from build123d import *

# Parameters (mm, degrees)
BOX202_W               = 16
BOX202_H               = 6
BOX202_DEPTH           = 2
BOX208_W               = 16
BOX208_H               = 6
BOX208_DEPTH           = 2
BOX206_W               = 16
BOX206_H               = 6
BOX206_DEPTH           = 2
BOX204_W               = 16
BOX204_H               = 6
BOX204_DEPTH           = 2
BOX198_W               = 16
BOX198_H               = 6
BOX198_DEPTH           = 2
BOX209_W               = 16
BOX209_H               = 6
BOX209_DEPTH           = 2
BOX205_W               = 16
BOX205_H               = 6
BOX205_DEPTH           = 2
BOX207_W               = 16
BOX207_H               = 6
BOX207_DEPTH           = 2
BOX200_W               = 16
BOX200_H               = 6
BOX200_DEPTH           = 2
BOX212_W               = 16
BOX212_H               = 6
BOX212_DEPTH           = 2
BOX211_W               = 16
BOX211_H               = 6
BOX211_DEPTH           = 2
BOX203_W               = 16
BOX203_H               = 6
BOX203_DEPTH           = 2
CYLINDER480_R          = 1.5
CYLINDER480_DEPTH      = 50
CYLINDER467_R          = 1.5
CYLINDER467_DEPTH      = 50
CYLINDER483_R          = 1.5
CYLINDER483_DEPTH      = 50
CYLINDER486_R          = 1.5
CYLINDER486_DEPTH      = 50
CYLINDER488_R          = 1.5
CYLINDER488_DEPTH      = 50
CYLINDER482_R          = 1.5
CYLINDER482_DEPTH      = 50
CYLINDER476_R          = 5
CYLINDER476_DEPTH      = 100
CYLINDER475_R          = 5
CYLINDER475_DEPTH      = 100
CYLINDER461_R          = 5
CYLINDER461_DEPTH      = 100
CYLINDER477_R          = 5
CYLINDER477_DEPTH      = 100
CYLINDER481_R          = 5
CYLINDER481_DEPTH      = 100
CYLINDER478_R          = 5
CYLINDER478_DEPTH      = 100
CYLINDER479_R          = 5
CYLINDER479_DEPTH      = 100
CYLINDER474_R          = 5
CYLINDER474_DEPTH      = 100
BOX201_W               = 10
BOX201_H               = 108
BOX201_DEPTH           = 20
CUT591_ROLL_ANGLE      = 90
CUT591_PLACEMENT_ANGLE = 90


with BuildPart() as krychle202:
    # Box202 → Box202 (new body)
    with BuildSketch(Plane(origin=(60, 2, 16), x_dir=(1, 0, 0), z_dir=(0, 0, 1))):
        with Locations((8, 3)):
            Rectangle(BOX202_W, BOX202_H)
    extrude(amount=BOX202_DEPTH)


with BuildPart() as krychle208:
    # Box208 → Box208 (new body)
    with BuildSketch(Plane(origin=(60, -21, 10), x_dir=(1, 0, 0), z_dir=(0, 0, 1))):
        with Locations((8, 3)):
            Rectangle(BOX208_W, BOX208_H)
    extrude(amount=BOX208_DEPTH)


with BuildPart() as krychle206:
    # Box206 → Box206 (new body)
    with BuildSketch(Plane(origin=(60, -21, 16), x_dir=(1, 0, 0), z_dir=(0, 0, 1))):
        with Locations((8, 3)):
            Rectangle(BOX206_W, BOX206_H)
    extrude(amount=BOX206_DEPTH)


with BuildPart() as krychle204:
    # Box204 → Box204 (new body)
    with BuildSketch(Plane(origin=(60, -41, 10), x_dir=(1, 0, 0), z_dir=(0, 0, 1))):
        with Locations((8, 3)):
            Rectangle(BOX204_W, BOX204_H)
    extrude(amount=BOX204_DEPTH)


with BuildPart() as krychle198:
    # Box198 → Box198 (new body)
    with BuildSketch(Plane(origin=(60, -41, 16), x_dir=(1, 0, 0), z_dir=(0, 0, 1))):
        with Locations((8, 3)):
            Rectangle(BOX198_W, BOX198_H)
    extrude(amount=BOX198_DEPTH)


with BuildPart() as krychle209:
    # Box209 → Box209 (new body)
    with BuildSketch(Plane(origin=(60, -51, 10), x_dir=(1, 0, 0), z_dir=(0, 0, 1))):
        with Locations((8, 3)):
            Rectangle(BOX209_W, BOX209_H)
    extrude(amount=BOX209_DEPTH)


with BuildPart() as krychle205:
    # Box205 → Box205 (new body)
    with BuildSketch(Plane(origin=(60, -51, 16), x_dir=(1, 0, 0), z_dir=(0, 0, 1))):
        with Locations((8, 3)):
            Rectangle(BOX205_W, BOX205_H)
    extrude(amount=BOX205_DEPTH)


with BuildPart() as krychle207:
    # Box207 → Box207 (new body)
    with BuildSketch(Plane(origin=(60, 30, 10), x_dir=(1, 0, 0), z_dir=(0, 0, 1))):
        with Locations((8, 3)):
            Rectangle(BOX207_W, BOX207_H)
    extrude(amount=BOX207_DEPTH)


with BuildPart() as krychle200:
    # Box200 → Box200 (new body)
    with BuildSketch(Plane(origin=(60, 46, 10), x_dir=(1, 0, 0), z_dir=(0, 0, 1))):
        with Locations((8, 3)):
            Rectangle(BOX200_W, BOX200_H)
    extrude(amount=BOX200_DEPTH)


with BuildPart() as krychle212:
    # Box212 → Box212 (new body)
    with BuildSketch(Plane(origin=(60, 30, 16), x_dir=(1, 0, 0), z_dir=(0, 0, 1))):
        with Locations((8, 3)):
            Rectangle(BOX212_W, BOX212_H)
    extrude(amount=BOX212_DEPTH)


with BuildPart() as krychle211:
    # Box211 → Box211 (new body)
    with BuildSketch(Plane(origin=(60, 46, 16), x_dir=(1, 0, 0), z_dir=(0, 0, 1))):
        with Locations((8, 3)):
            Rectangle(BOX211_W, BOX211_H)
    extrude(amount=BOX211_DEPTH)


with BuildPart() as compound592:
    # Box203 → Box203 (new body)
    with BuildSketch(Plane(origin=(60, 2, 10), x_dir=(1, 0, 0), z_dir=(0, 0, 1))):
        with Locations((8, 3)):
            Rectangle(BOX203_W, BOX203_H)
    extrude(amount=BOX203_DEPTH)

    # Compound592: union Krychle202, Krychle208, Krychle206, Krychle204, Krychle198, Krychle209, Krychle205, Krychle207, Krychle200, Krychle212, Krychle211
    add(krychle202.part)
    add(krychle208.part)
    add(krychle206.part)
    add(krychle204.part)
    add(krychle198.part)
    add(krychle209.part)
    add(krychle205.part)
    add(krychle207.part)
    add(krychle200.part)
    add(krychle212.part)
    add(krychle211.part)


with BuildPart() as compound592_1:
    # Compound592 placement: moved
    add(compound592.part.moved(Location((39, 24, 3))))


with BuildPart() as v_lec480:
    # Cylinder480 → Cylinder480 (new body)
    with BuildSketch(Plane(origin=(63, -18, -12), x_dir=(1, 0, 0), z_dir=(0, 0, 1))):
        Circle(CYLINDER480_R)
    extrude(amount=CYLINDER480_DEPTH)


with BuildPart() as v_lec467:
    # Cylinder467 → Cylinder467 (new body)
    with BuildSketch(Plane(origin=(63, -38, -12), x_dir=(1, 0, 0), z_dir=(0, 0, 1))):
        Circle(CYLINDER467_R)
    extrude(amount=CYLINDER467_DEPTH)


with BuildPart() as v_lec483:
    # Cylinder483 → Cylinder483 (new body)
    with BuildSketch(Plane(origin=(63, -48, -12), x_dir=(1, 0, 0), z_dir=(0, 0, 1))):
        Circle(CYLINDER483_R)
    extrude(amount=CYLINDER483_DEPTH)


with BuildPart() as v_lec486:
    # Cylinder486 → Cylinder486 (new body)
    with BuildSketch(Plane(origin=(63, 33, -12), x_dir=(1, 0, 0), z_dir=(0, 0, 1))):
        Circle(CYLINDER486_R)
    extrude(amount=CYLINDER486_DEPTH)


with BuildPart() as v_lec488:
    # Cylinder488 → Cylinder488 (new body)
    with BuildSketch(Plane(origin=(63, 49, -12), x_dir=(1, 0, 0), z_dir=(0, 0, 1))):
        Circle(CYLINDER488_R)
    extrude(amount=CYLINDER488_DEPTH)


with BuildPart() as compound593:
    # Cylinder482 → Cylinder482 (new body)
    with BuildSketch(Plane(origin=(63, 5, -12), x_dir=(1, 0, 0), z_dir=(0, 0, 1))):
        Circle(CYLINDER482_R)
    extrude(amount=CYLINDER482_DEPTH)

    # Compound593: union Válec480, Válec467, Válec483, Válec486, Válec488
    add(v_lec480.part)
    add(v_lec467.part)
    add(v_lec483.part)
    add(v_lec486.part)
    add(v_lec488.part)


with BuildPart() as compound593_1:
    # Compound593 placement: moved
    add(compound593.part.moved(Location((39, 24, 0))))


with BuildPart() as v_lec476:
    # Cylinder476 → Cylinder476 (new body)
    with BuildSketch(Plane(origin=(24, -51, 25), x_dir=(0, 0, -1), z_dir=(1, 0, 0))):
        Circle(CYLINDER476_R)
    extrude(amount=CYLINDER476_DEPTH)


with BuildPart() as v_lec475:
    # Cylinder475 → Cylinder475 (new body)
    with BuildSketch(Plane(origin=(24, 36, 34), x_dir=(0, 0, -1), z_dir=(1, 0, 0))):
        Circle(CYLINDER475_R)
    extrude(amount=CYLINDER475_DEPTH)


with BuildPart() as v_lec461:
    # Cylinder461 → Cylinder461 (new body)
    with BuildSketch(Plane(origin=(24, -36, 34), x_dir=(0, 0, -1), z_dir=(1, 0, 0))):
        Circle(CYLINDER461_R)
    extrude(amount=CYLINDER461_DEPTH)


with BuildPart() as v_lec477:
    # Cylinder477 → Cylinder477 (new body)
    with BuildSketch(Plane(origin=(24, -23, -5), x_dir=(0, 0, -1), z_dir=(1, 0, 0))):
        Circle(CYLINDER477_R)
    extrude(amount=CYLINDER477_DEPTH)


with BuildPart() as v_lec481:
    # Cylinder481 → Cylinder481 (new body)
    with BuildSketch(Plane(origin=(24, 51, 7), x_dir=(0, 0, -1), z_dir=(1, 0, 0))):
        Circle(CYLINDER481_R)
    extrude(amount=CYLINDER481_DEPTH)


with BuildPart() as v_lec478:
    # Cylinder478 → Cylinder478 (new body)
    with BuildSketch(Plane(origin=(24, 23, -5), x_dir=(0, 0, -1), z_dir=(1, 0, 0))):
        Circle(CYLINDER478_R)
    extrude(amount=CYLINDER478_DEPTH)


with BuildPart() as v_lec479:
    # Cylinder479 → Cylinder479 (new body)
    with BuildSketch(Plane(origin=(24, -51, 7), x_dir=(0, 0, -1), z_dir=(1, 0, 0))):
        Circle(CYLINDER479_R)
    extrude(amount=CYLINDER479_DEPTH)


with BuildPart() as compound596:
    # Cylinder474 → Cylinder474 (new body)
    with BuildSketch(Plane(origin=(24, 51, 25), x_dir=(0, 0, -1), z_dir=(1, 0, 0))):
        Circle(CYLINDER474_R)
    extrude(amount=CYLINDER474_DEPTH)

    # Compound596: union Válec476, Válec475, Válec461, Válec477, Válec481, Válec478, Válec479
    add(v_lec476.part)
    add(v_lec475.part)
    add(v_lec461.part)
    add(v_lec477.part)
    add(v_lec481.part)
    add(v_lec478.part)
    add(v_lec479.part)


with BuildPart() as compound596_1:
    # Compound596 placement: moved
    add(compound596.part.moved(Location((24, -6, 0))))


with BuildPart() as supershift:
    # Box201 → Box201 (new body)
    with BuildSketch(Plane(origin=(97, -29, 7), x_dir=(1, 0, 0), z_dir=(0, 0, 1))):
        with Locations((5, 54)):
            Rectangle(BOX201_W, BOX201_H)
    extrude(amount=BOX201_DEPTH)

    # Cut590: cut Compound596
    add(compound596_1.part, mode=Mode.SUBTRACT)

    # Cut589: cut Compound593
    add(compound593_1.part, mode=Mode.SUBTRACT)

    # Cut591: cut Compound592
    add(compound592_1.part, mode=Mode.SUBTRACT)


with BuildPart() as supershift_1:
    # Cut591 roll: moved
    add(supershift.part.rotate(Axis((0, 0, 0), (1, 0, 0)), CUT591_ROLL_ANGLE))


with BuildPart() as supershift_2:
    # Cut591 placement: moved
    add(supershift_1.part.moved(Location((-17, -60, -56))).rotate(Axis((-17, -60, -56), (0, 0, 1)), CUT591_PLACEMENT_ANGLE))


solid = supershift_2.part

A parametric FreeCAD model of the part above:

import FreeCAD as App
import Part
import Sketcher


def add_polygon(sketch, points):
    """Adds a closed chain of lines whose ends are joined by coincident constraints."""
    first, n = sketch.GeometryCount, len(points)
    for a, b in zip(points, points[1:] + points[:1]):
        sketch.addGeometry(Part.LineSegment(App.Vector(*a, 0), App.Vector(*b, 0)), False)
    for i in range(n):
        sketch.addConstraint(Sketcher.Constraint("Coincident", first + i, 2, first + (i + 1) % n, 1))

doc = App.newDocument("Part")
body = doc.addObject("PartDesign::Body", "Body")

sketch1 = body.newObject("Sketcher::SketchObject", "Sketch")
sketch1.AttachmentSupport = (doc.getObject("XY_Plane"), [""])
sketch1.MapMode = "FlatFace"
sketch1.AttachmentOffset = App.Placement(App.Vector(0, 0, 16), App.Rotation())
add_polygon(sketch1, [(60, 8), (60, 2), (76, 2), (76, 8)])
sketch1.addConstraint([
    Sketcher.Constraint("Vertical", 0),
    Sketcher.Constraint("Horizontal", 1),
    Sketcher.Constraint("Vertical", 2),
    Sketcher.Constraint("Horizontal", 3),
    Sketcher.Constraint("DistanceX", 1, 1, 1, 2, 16.0),
    Sketcher.Constraint("DistanceY", 0, 2, 0, 1, 6.0),
    Sketcher.Constraint("DistanceX", -1, 1, 0, 2, 60.0),
    Sketcher.Constraint("DistanceY", -1, 1, 0, 2, 2.0),
])
pad1 = body.newObject("PartDesign::Pad", "Pad")
pad1.Profile = sketch1
pad1.Length = 2
body2 = doc.addObject("PartDesign::Body", "Body001")

sketch2 = body2.newObject("Sketcher::SketchObject", "Sketch001")
sketch2.AttachmentSupport = (doc.getObject("XY_Plane001"), [""])
sketch2.MapMode = "FlatFace"
sketch2.AttachmentOffset = App.Placement(App.Vector(0, 0, 10), App.Rotation())
add_polygon(sketch2, [(60, -15), (60, -21), (76, -21), (76, -15)])
sketch2.addConstraint([
    Sketcher.Constraint("Vertical", 0),
    Sketcher.Constraint("Horizontal", 1),
    Sketcher.Constraint("Vertical", 2),
    Sketcher.Constraint("Horizontal", 3),
    Sketcher.Constraint("DistanceX", 1, 1, 1, 2, 16.0),
    Sketcher.Constraint("DistanceY", 0, 2, 0, 1, 6.0),
    Sketcher.Constraint("DistanceX", -1, 1, 0, 2, 60.0),
    Sketcher.Constraint("DistanceY", 0, 2, -1, 1, 21.0),
])
pad2 = body2.newObject("PartDesign::Pad", "Pad001")
pad2.Profile = sketch2
pad2.Length = 2
body3 = doc.addObject("PartDesign::Body", "Body002")

sketch3 = body3.newObject("Sketcher::SketchObject", "Sketch002")
sketch3.AttachmentSupport = (doc.getObject("XY_Plane002"), [""])
sketch3.MapMode = "FlatFace"
sketch3.AttachmentOffset = App.Placement(App.Vector(0, 0, 16), App.Rotation())
add_polygon(sketch3, [(60, -15), (60, -21), (76, -21), (76, -15)])
sketch3.addConstraint([
    Sketcher.Constraint("Vertical", 0),
    Sketcher.Constraint("Horizontal", 1),
    Sketcher.Constraint("Vertical", 2),
    Sketcher.Constraint("Horizontal", 3),
    Sketcher.Constraint("DistanceX", 1, 1, 1, 2, 16.0),
    Sketcher.Constraint("DistanceY", 0, 2, 0, 1, 6.0),
    Sketcher.Constraint("DistanceX", -1, 1, 0, 2, 60.0),
    Sketcher.Constraint("DistanceY", 0, 2, -1, 1, 21.0),
])
pad3 = body3.newObject("PartDesign::Pad", "Pad002")
pad3.Profile = sketch3
pad3.Length = 2
body4 = doc.addObject("PartDesign::Body", "Body003")

sketch4 = body4.newObject("Sketcher::SketchObject", "Sketch003")
sketch4.AttachmentSupport = (doc.getObject("XY_Plane003"), [""])
sketch4.MapMode = "FlatFace"
sketch4.AttachmentOffset = App.Placement(App.Vector(0, 0, 10), App.Rotation())
add_polygon(sketch4, [(60, -35), (60, -41), (76, -41), (76, -35)])
sketch4.addConstraint([
    Sketcher.Constraint("Vertical", 0),
    Sketcher.Constraint("Horizontal", 1),
    Sketcher.Constraint("Vertical", 2),
    Sketcher.Constraint("Horizontal", 3),
    Sketcher.Constraint("DistanceX", 1, 1, 1, 2, 16.0),
    Sketcher.Constraint("DistanceY", 0, 2, 0, 1, 6.0),
    Sketcher.Constraint("DistanceX", -1, 1, 0, 2, 60.0),
    Sketcher.Constraint("DistanceY", 0, 2, -1, 1, 41.0),
])
pad4 = body4.newObject("PartDesign::Pad", "Pad003")
pad4.Profile = sketch4
pad4.Length = 2
body5 = doc.addObject("PartDesign::Body", "Body004")

sketch5 = body5.newObject("Sketcher::SketchObject", "Sketch004")
sketch5.AttachmentSupport = (doc.getObject("XY_Plane004"), [""])
sketch5.MapMode = "FlatFace"
sketch5.AttachmentOffset = App.Placement(App.Vector(0, 0, 16), App.Rotation())
add_polygon(sketch5, [(60, -35), (60, -41), (76, -41), (76, -35)])
sketch5.addConstraint([
    Sketcher.Constraint("Vertical", 0),
    Sketcher.Constraint("Horizontal", 1),
    Sketcher.Constraint("Vertical", 2),
    Sketcher.Constraint("Horizontal", 3),
    Sketcher.Constraint("DistanceX", 1, 1, 1, 2, 16.0),
    Sketcher.Constraint("DistanceY", 0, 2, 0, 1, 6.0),
    Sketcher.Constraint("DistanceX", -1, 1, 0, 2, 60.0),
    Sketcher.Constraint("DistanceY", 0, 2, -1, 1, 41.0),
])
pad5 = body5.newObject("PartDesign::Pad", "Pad004")
pad5.Profile = sketch5
pad5.Length = 2
body6 = doc.addObject("PartDesign::Body", "Body005")

sketch6 = body6.newObject("Sketcher::SketchObject", "Sketch005")
sketch6.AttachmentSupport = (doc.getObject("XY_Plane005"), [""])
sketch6.MapMode = "FlatFace"
sketch6.AttachmentOffset = App.Placement(App.Vector(0, 0, 10), App.Rotation())
add_polygon(sketch6, [(60, -45), (60, -51), (76, -51), (76, -45)])
sketch6.addConstraint([
    Sketcher.Constraint("Vertical", 0),
    Sketcher.Constraint("Horizontal", 1),
    Sketcher.Constraint("Vertical", 2),
    Sketcher.Constraint("Horizontal", 3),
    Sketcher.Constraint("DistanceX", 1, 1, 1, 2, 16.0),
    Sketcher.Constraint("DistanceY", 0, 2, 0, 1, 6.0),
    Sketcher.Constraint("DistanceX", -1, 1, 0, 2, 60.0),
    Sketcher.Constraint("DistanceY", 0, 2, -1, 1, 51.0),
])
pad6 = body6.newObject("PartDesign::Pad", "Pad005")
pad6.Profile = sketch6
pad6.Length = 2
body7 = doc.addObject("PartDesign::Body", "Body006")

sketch7 = body7.newObject("Sketcher::SketchObject", "Sketch006")
sketch7.AttachmentSupport = (doc.getObject("XY_Plane006"), [""])
sketch7.MapMode = "FlatFace"
sketch7.AttachmentOffset = App.Placement(App.Vector(0, 0, 16), App.Rotation())
add_polygon(sketch7, [(60, -45), (60, -51), (76, -51), (76, -45)])
sketch7.addConstraint([
    Sketcher.Constraint("Vertical", 0),
    Sketcher.Constraint("Horizontal", 1),
    Sketcher.Constraint("Vertical", 2),
    Sketcher.Constraint("Horizontal", 3),
    Sketcher.Constraint("DistanceX", 1, 1, 1, 2, 16.0),
    Sketcher.Constraint("DistanceY", 0, 2, 0, 1, 6.0),
    Sketcher.Constraint("DistanceX", -1, 1, 0, 2, 60.0),
    Sketcher.Constraint("DistanceY", 0, 2, -1, 1, 51.0),
])
pad7 = body7.newObject("PartDesign::Pad", "Pad006")
pad7.Profile = sketch7
pad7.Length = 2
body8 = doc.addObject("PartDesign::Body", "Body007")

sketch8 = body8.newObject("Sketcher::SketchObject", "Sketch007")
sketch8.AttachmentSupport = (doc.getObject("XY_Plane007"), [""])
sketch8.MapMode = "FlatFace"
sketch8.AttachmentOffset = App.Placement(App.Vector(0, 0, 10), App.Rotation())
add_polygon(sketch8, [(60, 36), (60, 30), (76, 30), (76, 36)])
sketch8.addConstraint([
    Sketcher.Constraint("Vertical", 0),
    Sketcher.Constraint("Horizontal", 1),
    Sketcher.Constraint("Vertical", 2),
    Sketcher.Constraint("Horizontal", 3),
    Sketcher.Constraint("DistanceX", 1, 1, 1, 2, 16.0),
    Sketcher.Constraint("DistanceY", 0, 2, 0, 1, 6.0),
    Sketcher.Constraint("DistanceX", -1, 1, 0, 2, 60.0),
    Sketcher.Constraint("DistanceY", -1, 1, 0, 2, 30.0),
])
pad8 = body8.newObject("PartDesign::Pad", "Pad007")
pad8.Profile = sketch8
pad8.Length = 2
body9 = doc.addObject("PartDesign::Body", "Body008")

sketch9 = body9.newObject("Sketcher::SketchObject", "Sketch008")
sketch9.AttachmentSupport = (doc.getObject("XY_Plane008"), [""])
sketch9.MapMode = "FlatFace"
sketch9.AttachmentOffset = App.Placement(App.Vector(0, 0, 10), App.Rotation())
add_polygon(sketch9, [(60, 52), (60, 46), (76, 46), (76, 52)])
sketch9.addConstraint([
    Sketcher.Constraint("Vertical", 0),
    Sketcher.Constraint("Horizontal", 1),
    Sketcher.Constraint("Vertical", 2),
    Sketcher.Constraint("Horizontal", 3),
    Sketcher.Constraint("DistanceX", 1, 1, 1, 2, 16.0),
    Sketcher.Constraint("DistanceY", 0, 2, 0, 1, 6.0),
    Sketcher.Constraint("DistanceX", -1, 1, 0, 2, 60.0),
    Sketcher.Constraint("DistanceY", -1, 1, 0, 2, 46.0),
])
pad9 = body9.newObject("PartDesign::Pad", "Pad008")
pad9.Profile = sketch9
pad9.Length = 2
body10 = doc.addObject("PartDesign::Body", "Body009")

sketch10 = body10.newObject("Sketcher::SketchObject", "Sketch009")
sketch10.AttachmentSupport = (doc.getObject("XY_Plane009"), [""])
sketch10.MapMode = "FlatFace"
sketch10.AttachmentOffset = App.Placement(App.Vector(0, 0, 16), App.Rotation())
add_polygon(sketch10, [(60, 36), (60, 30), (76, 30), (76, 36)])
sketch10.addConstraint([
    Sketcher.Constraint("Vertical", 0),
    Sketcher.Constraint("Horizontal", 1),
    Sketcher.Constraint("Vertical", 2),
    Sketcher.Constraint("Horizontal", 3),
    Sketcher.Constraint("DistanceX", 1, 1, 1, 2, 16.0),
    Sketcher.Constraint("DistanceY", 0, 2, 0, 1, 6.0),
    Sketcher.Constraint("DistanceX", -1, 1, 0, 2, 60.0),
    Sketcher.Constraint("DistanceY", -1, 1, 0, 2, 30.0),
])
pad10 = body10.newObject("PartDesign::Pad", "Pad009")
pad10.Profile = sketch10
pad10.Length = 2
body11 = doc.addObject("PartDesign::Body", "Body010")

sketch11 = body11.newObject("Sketcher::SketchObject", "Sketch010")
sketch11.AttachmentSupport = (doc.getObject("XY_Plane010"), [""])
sketch11.MapMode = "FlatFace"
sketch11.AttachmentOffset = App.Placement(App.Vector(0, 0, 16), App.Rotation())
add_polygon(sketch11, [(60, 52), (60, 46), (76, 46), (76, 52)])
sketch11.addConstraint([
    Sketcher.Constraint("Vertical", 0),
    Sketcher.Constraint("Horizontal", 1),
    Sketcher.Constraint("Vertical", 2),
    Sketcher.Constraint("Horizontal", 3),
    Sketcher.Constraint("DistanceX", 1, 1, 1, 2, 16.0),
    Sketcher.Constraint("DistanceY", 0, 2, 0, 1, 6.0),
    Sketcher.Constraint("DistanceX", -1, 1, 0, 2, 60.0),
    Sketcher.Constraint("DistanceY", -1, 1, 0, 2, 46.0),
])
pad11 = body11.newObject("PartDesign::Pad", "Pad010")
pad11.Profile = sketch11
pad11.Length = 2
body12 = doc.addObject("PartDesign::Body", "Body011")
body12.AllowCompound = True

sketch12 = body12.newObject("Sketcher::SketchObject", "Sketch011")
sketch12.AttachmentSupport = (doc.getObject("XY_Plane011"), [""])
sketch12.MapMode = "FlatFace"
sketch12.AttachmentOffset = App.Placement(App.Vector(0, 0, 10), App.Rotation())
add_polygon(sketch12, [(60, 8), (60, 2), (76, 2), (76, 8)])
sketch12.addConstraint([
    Sketcher.Constraint("Vertical", 0),
    Sketcher.Constraint("Horizontal", 1),
    Sketcher.Constraint("Vertical", 2),
    Sketcher.Constraint("Horizontal", 3),
    Sketcher.Constraint("DistanceX", 1, 1, 1, 2, 16.0),
    Sketcher.Constraint("DistanceY", 0, 2, 0, 1, 6.0),
    Sketcher.Constraint("DistanceX", -1, 1, 0, 2, 60.0),
    Sketcher.Constraint("DistanceY", -1, 1, 0, 2, 2.0),
])
pad12 = body12.newObject("PartDesign::Pad", "Pad011")
pad12.Profile = sketch12
pad12.Length = 2
doc.recompute()

boolean = body12.newObject("PartDesign::Boolean", "Boolean")
boolean.Type = "Fuse"
boolean.addObjects([body])
doc.recompute()

boolean2 = body12.newObject("PartDesign::Boolean", "Boolean001")
boolean2.Type = "Fuse"
boolean2.addObjects([body2])
doc.recompute()

boolean3 = body12.newObject("PartDesign::Boolean", "Boolean002")
boolean3.Type = "Fuse"
boolean3.addObjects([body3])
doc.recompute()

boolean4 = body12.newObject("PartDesign::Boolean", "Boolean003")
boolean4.Type = "Fuse"
boolean4.addObjects([body4])
doc.recompute()

boolean5 = body12.newObject("PartDesign::Boolean", "Boolean004")
boolean5.Type = "Fuse"
boolean5.addObjects([body5])
doc.recompute()

boolean6 = body12.newObject("PartDesign::Boolean", "Boolean005")
boolean6.Type = "Fuse"
boolean6.addObjects([body6])
doc.recompute()

boolean7 = body12.newObject("PartDesign::Boolean", "Boolean006")
boolean7.Type = "Fuse"
boolean7.addObjects([body7])
doc.recompute()

boolean8 = body12.newObject("PartDesign::Boolean", "Boolean007")
boolean8.Type = "Fuse"
boolean8.addObjects([body8])
doc.recompute()

boolean9 = body12.newObject("PartDesign::Boolean", "Boolean008")
boolean9.Type = "Fuse"
boolean9.addObjects([body9])
doc.recompute()

boolean10 = body12.newObject("PartDesign::Boolean", "Boolean009")
boolean10.Type = "Fuse"
boolean10.addObjects([body10])
doc.recompute()

boolean11 = body12.newObject("PartDesign::Boolean", "Boolean010")
boolean11.Type = "Fuse"
boolean11.addObjects([body11])
body13 = doc.addObject("PartDesign::Body", "Body012")
body13.AllowCompound = True
doc.recompute()

body12.Placement = App.Placement(App.Vector(39, 24, 3), App.Rotation(App.Vector(0, 0, 1), 0))
boolean12 = body13.newObject("PartDesign::Boolean", "Boolean011")
boolean12.Type = "Fuse"
boolean12.addObjects([body12])
body14 = doc.addObject("PartDesign::Body", "Body013")

sketch13 = body14.newObject("Sketcher::SketchObject", "Sketch012")
sketch13.AttachmentSupport = (doc.getObject("XY_Plane013"), [""])
sketch13.MapMode = "FlatFace"
sketch13.AttachmentOffset = App.Placement(App.Vector(0, 0, -12), App.Rotation())
sketch13.addGeometry(Part.Circle(App.Vector(63, -18, 0), App.Vector(0, 0, 1), 1.5), False)
sketch13.addConstraint([
    Sketcher.Constraint("Diameter", 0, 3.0),
    Sketcher.Constraint("DistanceX", -1, 1, 0, 3, 63.0),
    Sketcher.Constraint("DistanceY", 0, 3, -1, 1, 18.0),
])
pad13 = body14.newObject("PartDesign::Pad", "Pad012")
pad13.Profile = sketch13
pad13.Length = 50
body15 = doc.addObject("PartDesign::Body", "Body014")

sketch14 = body15.newObject("Sketcher::SketchObject", "Sketch013")
sketch14.AttachmentSupport = (doc.getObject("XY_Plane014"), [""])
sketch14.MapMode = "FlatFace"
sketch14.AttachmentOffset = App.Placement(App.Vector(0, 0, -12), App.Rotation())
sketch14.addGeometry(Part.Circle(App.Vector(63, -38, 0), App.Vector(0, 0, 1), 1.5), False)
sketch14.addConstraint([
    Sketcher.Constraint("Diameter", 0, 3.0),
    Sketcher.Constraint("DistanceX", -1, 1, 0, 3, 63.0),
    Sketcher.Constraint("DistanceY", 0, 3, -1, 1, 38.0),
])
pad14 = body15.newObject("PartDesign::Pad", "Pad013")
pad14.Profile = sketch14
pad14.Length = 50
body16 = doc.addObject("PartDesign::Body", "Body015")

sketch15 = body16.newObject("Sketcher::SketchObject", "Sketch014")
sketch15.AttachmentSupport = (doc.getObject("XY_Plane015"), [""])
sketch15.MapMode = "FlatFace"
sketch15.AttachmentOffset = App.Placement(App.Vector(0, 0, -12), App.Rotation())
sketch15.addGeometry(Part.Circle(App.Vector(63, -48, 0), App.Vector(0, 0, 1), 1.5), False)
sketch15.addConstraint([
    Sketcher.Constraint("Diameter", 0, 3.0),
    Sketcher.Constraint("DistanceX", -1, 1, 0, 3, 63.0),
    Sketcher.Constraint("DistanceY", 0, 3, -1, 1, 48.0),
])
pad15 = body16.newObject("PartDesign::Pad", "Pad014")
pad15.Profile = sketch15
pad15.Length = 50
body17 = doc.addObject("PartDesign::Body", "Body016")

sketch16 = body17.newObject("Sketcher::SketchObject", "Sketch015")
sketch16.AttachmentSupport = (doc.getObject("XY_Plane016"), [""])
sketch16.MapMode = "FlatFace"
sketch16.AttachmentOffset = App.Placement(App.Vector(0, 0, -12), App.Rotation())
sketch16.addGeometry(Part.Circle(App.Vector(63, 33, 0), App.Vector(0, 0, 1), 1.5), False)
sketch16.addConstraint([
    Sketcher.Constraint("Diameter", 0, 3.0),
    Sketcher.Constraint("DistanceX", -1, 1, 0, 3, 63.0),
    Sketcher.Constraint("DistanceY", -1, 1, 0, 3, 33.0),
])
pad16 = body17.newObject("PartDesign::Pad", "Pad015")
pad16.Profile = sketch16
pad16.Length = 50
body18 = doc.addObject("PartDesign::Body", "Body017")

sketch17 = body18.newObject("Sketcher::SketchObject", "Sketch016")
sketch17.AttachmentSupport = (doc.getObject("XY_Plane017"), [""])
sketch17.MapMode = "FlatFace"
sketch17.AttachmentOffset = App.Placement(App.Vector(0, 0, -12), App.Rotation())
sketch17.addGeometry(Part.Circle(App.Vector(63, 49, 0), App.Vector(0, 0, 1), 1.5), False)
sketch17.addConstraint([
    Sketcher.Constraint("Diameter", 0, 3.0),
    Sketcher.Constraint("DistanceX", -1, 1, 0, 3, 63.0),
    Sketcher.Constraint("DistanceY", -1, 1, 0, 3, 49.0),
])
pad17 = body18.newObject("PartDesign::Pad", "Pad016")
pad17.Profile = sketch17
pad17.Length = 50
body19 = doc.addObject("PartDesign::Body", "Body018")
body19.AllowCompound = True

sketch18 = body19.newObject("Sketcher::SketchObject", "Sketch017")
sketch18.AttachmentSupport = (doc.getObject("XY_Plane018"), [""])
sketch18.MapMode = "FlatFace"
sketch18.AttachmentOffset = App.Placement(App.Vector(0, 0, -12), App.Rotation())
sketch18.addGeometry(Part.Circle(App.Vector(63, 5, 0), App.Vector(0, 0, 1), 1.5), False)
sketch18.addConstraint([
    Sketcher.Constraint("Diameter", 0, 3.0),
    Sketcher.Constraint("DistanceX", -1, 1, 0, 3, 63.0),
    Sketcher.Constraint("DistanceY", -1, 1, 0, 3, 5.0),
])
pad18 = body19.newObject("PartDesign::Pad", "Pad017")
pad18.Profile = sketch18
pad18.Length = 50
doc.recompute()

boolean13 = body19.newObject("PartDesign::Boolean", "Boolean012")
boolean13.Type = "Fuse"
boolean13.addObjects([body14])
doc.recompute()

boolean14 = body19.newObject("PartDesign::Boolean", "Boolean013")
boolean14.Type = "Fuse"
boolean14.addObjects([body15])
doc.recompute()

boolean15 = body19.newObject("PartDesign::Boolean", "Boolean014")
boolean15.Type = "Fuse"
boolean15.addObjects([body16])
doc.recompute()

boolean16 = body19.newObject("PartDesign::Boolean", "Boolean015")
boolean16.Type = "Fuse"
boolean16.addObjects([body17])
doc.recompute()

boolean17 = body19.newObject("PartDesign::Boolean", "Boolean016")
boolean17.Type = "Fuse"
boolean17.addObjects([body18])
body20 = doc.addObject("PartDesign::Body", "Body019")
body20.AllowCompound = True
doc.recompute()

body19.Placement = App.Placement(App.Vector(39, 24, 0), App.Rotation(App.Vector(0, 0, 1), 0))
boolean18 = body20.newObject("PartDesign::Boolean", "Boolean017")
boolean18.Type = "Fuse"
boolean18.addObjects([body19])
body21 = doc.addObject("PartDesign::Body", "Body020")

sketch19 = body21.newObject("Sketcher::SketchObject", "Sketch018")
sketch19.AttachmentSupport = (doc.getObject("YZ_Plane020"), [""])
sketch19.MapMode = "FlatFace"
sketch19.AttachmentOffset = App.Placement(App.Vector(0, 0, 24), App.Rotation())
sketch19.addGeometry(Part.Circle(App.Vector(-51, 25, 0), App.Vector(0, 0, 1), 5), False)
sketch19.addConstraint([
    Sketcher.Constraint("Diameter", 0, 10.0),
    Sketcher.Constraint("DistanceX", 0, 3, -1, 1, 51.0),
    Sketcher.Constraint("DistanceY", -1, 1, 0, 3, 25.0),
])
pad19 = body21.newObject("PartDesign::Pad", "Pad018")
pad19.Profile = sketch19
pad19.Length = 100
body22 = doc.addObject("PartDesign::Body", "Body021")

sketch20 = body22.newObject("Sketcher::SketchObject", "Sketch019")
sketch20.AttachmentSupport = (doc.getObject("YZ_Plane021"), [""])
sketch20.MapMode = "FlatFace"
sketch20.AttachmentOffset = App.Placement(App.Vector(0, 0, 24), App.Rotation())
sketch20.addGeometry(Part.Circle(App.Vector(36, 34, 0), App.Vector(0, 0, 1), 5), False)
sketch20.addConstraint([
    Sketcher.Constraint("Diameter", 0, 10.0),
    Sketcher.Constraint("DistanceX", -1, 1, 0, 3, 36.0),
    Sketcher.Constraint("DistanceY", -1, 1, 0, 3, 34.0),
])
pad20 = body22.newObject("PartDesign::Pad", "Pad019")
pad20.Profile = sketch20
pad20.Length = 100
body23 = doc.addObject("PartDesign::Body", "Body022")

sketch21 = body23.newObject("Sketcher::SketchObject", "Sketch020")
sketch21.AttachmentSupport = (doc.getObject("YZ_Plane022"), [""])
sketch21.MapMode = "FlatFace"
sketch21.AttachmentOffset = App.Placement(App.Vector(0, 0, 24), App.Rotation())
sketch21.addGeometry(Part.Circle(App.Vector(-36, 34, 0), App.Vector(0, 0, 1), 5), False)
sketch21.addConstraint([
    Sketcher.Constraint("Diameter", 0, 10.0),
    Sketcher.Constraint("DistanceX", 0, 3, -1, 1, 36.0),
    Sketcher.Constraint("DistanceY", -1, 1, 0, 3, 34.0),
])
pad21 = body23.newObject("PartDesign::Pad", "Pad020")
pad21.Profile = sketch21
pad21.Length = 100
body24 = doc.addObject("PartDesign::Body", "Body023")

sketch22 = body24.newObject("Sketcher::SketchObject", "Sketch021")
sketch22.AttachmentSupport = (doc.getObject("YZ_Plane023"), [""])
sketch22.MapMode = "FlatFace"
sketch22.AttachmentOffset = App.Placement(App.Vector(0, 0, 24), App.Rotation())
sketch22.addGeometry(Part.Circle(App.Vector(-23, -5, 0), App.Vector(0, 0, 1), 5), False)
sketch22.addConstraint([
    Sketcher.Constraint("Diameter", 0, 10.0),
    Sketcher.Constraint("DistanceX", 0, 3, -1, 1, 23.0),
    Sketcher.Constraint("DistanceY", 0, 3, -1, 1, 5.0),
])
pad22 = body24.newObject("PartDesign::Pad", "Pad021")
pad22.Profile = sketch22
pad22.Length = 100
body25 = doc.addObject("PartDesign::Body", "Body024")

sketch23 = body25.newObject("Sketcher::SketchObject", "Sketch022")
sketch23.AttachmentSupport = (doc.getObject("YZ_Plane024"), [""])
sketch23.MapMode = "FlatFace"
sketch23.AttachmentOffset = App.Placement(App.Vector(0, 0, 24), App.Rotation())
sketch23.addGeometry(Part.Circle(App.Vector(51, 7, 0), App.Vector(0, 0, 1), 5), False)
sketch23.addConstraint([
    Sketcher.Constraint("Diameter", 0, 10.0),
    Sketcher.Constraint("DistanceX", -1, 1, 0, 3, 51.0),
    Sketcher.Constraint("DistanceY", -1, 1, 0, 3, 7.0),
])
pad23 = body25.newObject("PartDesign::Pad", "Pad022")
pad23.Profile = sketch23
pad23.Length = 100
body26 = doc.addObject("PartDesign::Body", "Body025")

sketch24 = body26.newObject("Sketcher::SketchObject", "Sketch023")
sketch24.AttachmentSupport = (doc.getObject("YZ_Plane025"), [""])
sketch24.MapMode = "FlatFace"
sketch24.AttachmentOffset = App.Placement(App.Vector(0, 0, 24), App.Rotation())
sketch24.addGeometry(Part.Circle(App.Vector(23, -5, 0), App.Vector(0, 0, 1), 5), False)
sketch24.addConstraint([
    Sketcher.Constraint("Diameter", 0, 10.0),
    Sketcher.Constraint("DistanceX", -1, 1, 0, 3, 23.0),
    Sketcher.Constraint("DistanceY", 0, 3, -1, 1, 5.0),
])
pad24 = body26.newObject("PartDesign::Pad", "Pad023")
pad24.Profile = sketch24
pad24.Length = 100
body27 = doc.addObject("PartDesign::Body", "Body026")

sketch25 = body27.newObject("Sketcher::SketchObject", "Sketch024")
sketch25.AttachmentSupport = (doc.getObject("YZ_Plane026"), [""])
sketch25.MapMode = "FlatFace"
sketch25.AttachmentOffset = App.Placement(App.Vector(0, 0, 24), App.Rotation())
sketch25.addGeometry(Part.Circle(App.Vector(-51, 7, 0), App.Vector(0, 0, 1), 5), False)
sketch25.addConstraint([
    Sketcher.Constraint("Diameter", 0, 10.0),
    Sketcher.Constraint("DistanceX", 0, 3, -1, 1, 51.0),
    Sketcher.Constraint("DistanceY", -1, 1, 0, 3, 7.0),
])
pad25 = body27.newObject("PartDesign::Pad", "Pad024")
pad25.Profile = sketch25
pad25.Length = 100
body28 = doc.addObject("PartDesign::Body", "Body027")
body28.AllowCompound = True

sketch26 = body28.newObject("Sketcher::SketchObject", "Sketch025")
sketch26.AttachmentSupport = (doc.getObject("YZ_Plane027"), [""])
sketch26.MapMode = "FlatFace"
sketch26.AttachmentOffset = App.Placement(App.Vector(0, 0, 24), App.Rotation())
sketch26.addGeometry(Part.Circle(App.Vector(51, 25, 0), App.Vector(0, 0, 1), 5), False)
sketch26.addConstraint([
    Sketcher.Constraint("Diameter", 0, 10.0),
    Sketcher.Constraint("DistanceX", -1, 1, 0, 3, 51.0),
    Sketcher.Constraint("DistanceY", -1, 1, 0, 3, 25.0),
])
pad26 = body28.newObject("PartDesign::Pad", "Pad025")
pad26.Profile = sketch26
pad26.Length = 100
doc.recompute()

boolean19 = body28.newObject("PartDesign::Boolean", "Boolean018")
boolean19.Type = "Fuse"
boolean19.addObjects([body21])
doc.recompute()

boolean20 = body28.newObject("PartDesign::Boolean", "Boolean019")
boolean20.Type = "Fuse"
boolean20.addObjects([body22])
doc.recompute()

boolean21 = body28.newObject("PartDesign::Boolean", "Boolean020")
boolean21.Type = "Fuse"
boolean21.addObjects([body23])
doc.recompute()

boolean22 = body28.newObject("PartDesign::Boolean", "Boolean021")
boolean22.Type = "Fuse"
boolean22.addObjects([body24])
doc.recompute()

boolean23 = body28.newObject("PartDesign::Boolean", "Boolean022")
boolean23.Type = "Fuse"
boolean23.addObjects([body25])
doc.recompute()

boolean24 = body28.newObject("PartDesign::Boolean", "Boolean023")
boolean24.Type = "Fuse"
boolean24.addObjects([body26])
doc.recompute()

boolean25 = body28.newObject("PartDesign::Boolean", "Boolean024")
boolean25.Type = "Fuse"
boolean25.addObjects([body27])
body29 = doc.addObject("PartDesign::Body", "Body028")
body29.AllowCompound = True
doc.recompute()

body28.Placement = App.Placement(App.Vector(24, -6, 0), App.Rotation(App.Vector(0, 0, 1), 0))
boolean26 = body29.newObject("PartDesign::Boolean", "Boolean025")
boolean26.Type = "Fuse"
boolean26.addObjects([body28])
body30 = doc.addObject("PartDesign::Body", "Body029")

sketch27 = body30.newObject("Sketcher::SketchObject", "Sketch026")
sketch27.AttachmentSupport = (doc.getObject("XY_Plane029"), [""])
sketch27.MapMode = "FlatFace"
sketch27.AttachmentOffset = App.Placement(App.Vector(0, 0, 7), App.Rotation())
add_polygon(sketch27, [(97, 79), (97, -29), (107, -29), (107, 79)])
sketch27.addConstraint([
    Sketcher.Constraint("Vertical", 0),
    Sketcher.Constraint("Horizontal", 1),
    Sketcher.Constraint("Vertical", 2),
    Sketcher.Constraint("Horizontal", 3),
    Sketcher.Constraint("DistanceX", 1, 1, 1, 2, 10.0),
    Sketcher.Constraint("DistanceY", 0, 2, 0, 1, 108.0),
    Sketcher.Constraint("DistanceX", -1, 1, 0, 2, 97.0),
    Sketcher.Constraint("DistanceY", 0, 2, -1, 1, 29.0),
])
pad27 = body30.newObject("PartDesign::Pad", "Pad026")
pad27.Profile = sketch27
pad27.Length = 20
doc.recompute()

boolean27 = body30.newObject("PartDesign::Boolean", "Boolean026")
boolean27.Type = "Cut"
boolean27.addObjects([body29])
doc.recompute()

boolean28 = body30.newObject("PartDesign::Boolean", "Boolean027")
boolean28.Type = "Cut"
boolean28.addObjects([body20])
doc.recompute()

boolean29 = body30.newObject("PartDesign::Boolean", "Boolean028")
boolean29.Type = "Cut"
boolean29.addObjects([body13])
body31 = doc.addObject("PartDesign::Body", "Body030")
doc.recompute()

body30.Placement = App.Placement(App.Vector(0, 0, 0), App.Rotation(App.Vector(1, 0, 0), 90))
boolean30 = body31.newObject("PartDesign::Boolean", "Boolean029")
boolean30.Type = "Fuse"
boolean30.addObjects([body30])
body32 = doc.addObject("PartDesign::Body", "Body031")
doc.recompute()

body31.Placement = App.Placement(App.Vector(-17, -60, -56), App.Rotation(App.Vector(0, 0, 1), 90))
boolean31 = body32.newObject("PartDesign::Boolean", "Boolean030")
boolean31.Type = "Fuse"
boolean31.addObjects([body31])

doc.recompute()
